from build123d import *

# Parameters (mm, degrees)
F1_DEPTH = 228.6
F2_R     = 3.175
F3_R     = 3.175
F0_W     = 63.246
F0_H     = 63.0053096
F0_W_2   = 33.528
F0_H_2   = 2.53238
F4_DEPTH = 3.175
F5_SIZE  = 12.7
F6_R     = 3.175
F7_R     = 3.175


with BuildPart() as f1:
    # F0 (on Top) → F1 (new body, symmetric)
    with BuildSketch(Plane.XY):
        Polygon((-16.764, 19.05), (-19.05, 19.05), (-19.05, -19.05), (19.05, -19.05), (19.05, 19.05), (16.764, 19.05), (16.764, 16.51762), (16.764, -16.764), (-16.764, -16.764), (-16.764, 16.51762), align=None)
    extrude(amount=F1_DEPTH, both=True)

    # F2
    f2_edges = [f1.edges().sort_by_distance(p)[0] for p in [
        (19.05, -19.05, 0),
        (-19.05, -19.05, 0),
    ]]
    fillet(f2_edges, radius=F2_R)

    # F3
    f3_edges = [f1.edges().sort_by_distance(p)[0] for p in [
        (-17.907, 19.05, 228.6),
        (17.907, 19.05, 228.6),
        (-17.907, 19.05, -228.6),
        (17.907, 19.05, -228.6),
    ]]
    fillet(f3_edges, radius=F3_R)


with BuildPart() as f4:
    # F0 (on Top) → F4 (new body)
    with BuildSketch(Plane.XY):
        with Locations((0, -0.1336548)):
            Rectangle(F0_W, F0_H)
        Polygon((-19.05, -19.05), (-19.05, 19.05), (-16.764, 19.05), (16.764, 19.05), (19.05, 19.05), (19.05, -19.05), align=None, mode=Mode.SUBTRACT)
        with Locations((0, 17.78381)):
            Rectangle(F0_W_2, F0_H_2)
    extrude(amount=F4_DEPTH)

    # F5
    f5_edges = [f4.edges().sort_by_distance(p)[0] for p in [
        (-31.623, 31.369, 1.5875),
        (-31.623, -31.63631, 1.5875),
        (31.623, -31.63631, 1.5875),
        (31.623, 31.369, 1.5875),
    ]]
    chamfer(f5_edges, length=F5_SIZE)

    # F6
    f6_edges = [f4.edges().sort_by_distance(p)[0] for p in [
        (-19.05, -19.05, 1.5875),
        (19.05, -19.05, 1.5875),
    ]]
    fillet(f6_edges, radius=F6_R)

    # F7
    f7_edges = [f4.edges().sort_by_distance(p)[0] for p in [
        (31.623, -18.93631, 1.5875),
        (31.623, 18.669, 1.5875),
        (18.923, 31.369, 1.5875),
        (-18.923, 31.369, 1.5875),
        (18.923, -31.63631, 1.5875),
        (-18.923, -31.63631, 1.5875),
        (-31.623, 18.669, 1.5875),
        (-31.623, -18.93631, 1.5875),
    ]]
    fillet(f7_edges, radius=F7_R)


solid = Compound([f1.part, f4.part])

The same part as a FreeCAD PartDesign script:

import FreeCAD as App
import Part
import Sketcher
from FreeCAD import Vector
Q = App.Units.Quantity


def edges_at(feature, points):
    """Names of the edges that pass closest to the given points."""
    edges = feature.Shape.Edges
    near = lambda p: min(range(len(edges)), key=lambda i: edges[i].distToShape(Part.Vertex(*p))[0])
    return sorted({f"Edge{near(p) + 1}" for p in points})


def add_polygon(sketch, points):
    """Adds a closed chain of lines whose ends are joined by coincident constraints."""
    first, n = sketch.GeometryCount, len(points)
    for a, b in zip(points, points[1:] + points[:1]):
        sketch.addGeometry(Part.LineSegment(App.Vector(*a, 0), App.Vector(*b, 0)), False)
    for i in range(n):
        sketch.addConstraint(Sketcher.Constraint("Coincident", first + i, 2, first + (i + 1) % n, 1))

doc = App.newDocument("Part")
body = doc.addObject("PartDesign::Body", "Body")

# Sketch on XY plane
sketch1 = body.newObject("Sketcher::SketchObject", "Sketch")
sketch1.AttachmentSupport = (doc.getObject("XY_Plane"), [""])
sketch1.MapMode = "FlatFace"
add_polygon(sketch1, [(-16.764, 19.05), (-19.05, 19.05), (-19.05, -19.05), (19.05, -19.05), (19.05, 19.05), (16.764, 19.05), (16.764, -16.764), (-16.764, -16.764)])  # lines 0-7
sketch1.addConstraint(Sketcher.Constraint("Horizontal", 0))
sketch1.addConstraint(Sketcher.Constraint("Vertical", 1))
sketch1.addConstraint(Sketcher.Constraint("Horizontal", 2))
sketch1.addConstraint(Sketcher.Constraint("Vertical", 3))
sketch1.addConstraint(Sketcher.Constraint("Horizontal", 4))
sketch1.addConstraint(Sketcher.Constraint("Vertical", 5))
sketch1.addConstraint(Sketcher.Constraint("Horizontal", 6))
sketch1.addConstraint(Sketcher.Constraint("Vertical", 7))
sketch1.addConstraint(Sketcher.Constraint("Symmetric", 0, 2, 2, 2, -1, 1))
sketch1.addConstraint(Sketcher.Constraint("Symmetric", 4, 2, 7, 2, -2))
sketch1.addConstraint(Sketcher.Constraint("Equal", 2, 1))
sketch1.addConstraint(Sketcher.Constraint("DistanceX", 2, 1, 2, 2, Q("1.5 in")))
sketch1.addConstraint(Sketcher.Constraint("DistanceX", 0, 2, 0, 1, Q("0.09 in")))
sketch1.addConstraint(Sketcher.Constraint("DistanceY", 5, 2, 5, 1, Q("1.41 in")))
pad1 = body.newObject("PartDesign::Pad", "Pad")
pad1.Profile = sketch1
pad1.Length = Q("18 in")
pad1.Midplane = True
doc.recompute()

fillet = body.newObject("PartDesign::Fillet", "Fillet")
fillet.Base = (pad1, edges_at(pad1, [(19.05, -19.05, 0), (-19.05, -19.05, 0)]))
fillet.Radius = Q("0.125 in")
doc.recompute()

fillet2 = body.newObject("PartDesign::Fillet", "Fillet001")
fillet2.Base = (fillet, edges_at(fillet, [
    (-17.907, 19.05, 228.6),
    (17.907, 19.05, 228.6),
    (-17.907, 19.05, -228.6),
    (17.907, 19.05, -228.6),
]))
fillet2.Radius = Q("0.125 in")
body2 = doc.addObject("PartDesign::Body", "Body001")

# Sketch on XY plane
sketch2 = body2.newObject("Sketcher::SketchObject", "Sketch001")
sketch2.AttachmentSupport = (doc.getObject("XY_Plane001"), [""])
sketch2.MapMode = "FlatFace"
add_polygon(sketch2, [(-31.623, 31.369), (-31.623, -31.63631), (31.623, -31.63631), (31.623, 31.369)])  # lines 0-3
add_polygon(sketch2, [(19.05, -19.05), (-19.05, -19.05), (-19.05, 19.05), (-16.764, 19.05), (-16.764, 16.51762), (16.764, 16.51762), (16.764, 19.05), (19.05, 19.05)])  # lines 4-11
sketch2.addConstraint(Sketcher.Constraint("Vertical", 0))
sketch2.addConstraint(Sketcher.Constraint("Horizontal", 1))
sketch2.addConstraint(Sketcher.Constraint("Vertical", 2))
sketch2.addConstraint(Sketcher.Constraint("Horizontal", 3))
sketch2.addConstraint(Sketcher.Constraint("Horizontal", 4))
sketch2.addConstraint(Sketcher.Constraint("Vertical", 5))
sketch2.addConstraint(Sketcher.Constraint("Horizontal", 6))
sketch2.addConstraint(Sketcher.Constraint("Vertical", 7))
sketch2.addConstraint(Sketcher.Constraint("Horizontal", 8))
sketch2.addConstraint(Sketcher.Constraint("Vertical", 9))
sketch2.addConstraint(Sketcher.Constraint("Horizontal", 10))
sketch2.addConstraint(Sketcher.Constraint("Vertical", 11))
sketch2.addConstraint(Sketcher.Constraint("Symmetric", 4, 2, 10, 2, -1, 1))
sketch2.addConstraint(Sketcher.Constraint("Symmetric", 6, 2, 9, 2, -2))
sketch2.addConstraint(Sketcher.Constraint("Equal", 4, 5))
sketch2.addConstraint(Sketcher.Constraint("DistanceX", 4, 2, 4, 1, Q("1.5 in")))
sketch2.addConstraint(Sketcher.Constraint("DistanceX", 1, 1, 1, 2, Q("2.49 in")))
sketch2.addConstraint(Sketcher.Constraint("DistanceX", 6, 1, 6, 2, Q("0.09 in")))
sketch2.addConstraint(Sketcher.Constraint("DistanceY", 7, 2, 7, 1, Q("0.0997 in")))
sketch2.addConstraint(Sketcher.Constraint("DistanceX", 0, 2, -1, 1, Q("1.245 in")))
sketch2.addConstraint(Sketcher.Constraint("DistanceY", -1, 1, 2, 2, Q("1.235 in")))
sketch2.addConstraint(Sketcher.Constraint("DistanceY", 0, 2, 0, 1, 63.00531))
pad2 = body2.newObject("PartDesign::Pad", "Pad001")
pad2.Profile = sketch2
pad2.Length = Q("0.125 in")
doc.recompute()

chamfer = body2.newObject("PartDesign::Chamfer", "Chamfer")
chamfer.Base = (pad2, edges_at(pad2, [
    (-31.623, 31.369, 1.587),
    (-31.623, -31.636, 1.587),
    (31.623, -31.636, 1.587),
    (31.623, 31.369, 1.587),
]))
chamfer.Size = Q("0.5 in")
doc.recompute()

fillet3 = body2.newObject("PartDesign::Fillet", "Fillet002")
fillet3.Base = (chamfer, edges_at(chamfer, [(-19.05, -19.05, 1.587), (19.05, -19.05, 1.587)]))
fillet3.Radius = Q("0.125 in")
doc.recompute()

fillet4 = body2.newObject("PartDesign::Fillet", "Fillet003")
fillet4.Base = (fillet3, edges_at(fillet3, [
    (31.623, -18.936, 1.587),
    (31.623, 18.669, 1.587),
    (18.923, 31.369, 1.587),
    (-18.923, 31.369, 1.587),
    (18.923, -31.636, 1.587),
    (-18.923, -31.636, 1.587),
    (-31.623, 18.669, 1.587),
    (-31.623, -18.936, 1.587),
]))
fillet4.Radius = Q("0.125 in")

doc.recompute()
